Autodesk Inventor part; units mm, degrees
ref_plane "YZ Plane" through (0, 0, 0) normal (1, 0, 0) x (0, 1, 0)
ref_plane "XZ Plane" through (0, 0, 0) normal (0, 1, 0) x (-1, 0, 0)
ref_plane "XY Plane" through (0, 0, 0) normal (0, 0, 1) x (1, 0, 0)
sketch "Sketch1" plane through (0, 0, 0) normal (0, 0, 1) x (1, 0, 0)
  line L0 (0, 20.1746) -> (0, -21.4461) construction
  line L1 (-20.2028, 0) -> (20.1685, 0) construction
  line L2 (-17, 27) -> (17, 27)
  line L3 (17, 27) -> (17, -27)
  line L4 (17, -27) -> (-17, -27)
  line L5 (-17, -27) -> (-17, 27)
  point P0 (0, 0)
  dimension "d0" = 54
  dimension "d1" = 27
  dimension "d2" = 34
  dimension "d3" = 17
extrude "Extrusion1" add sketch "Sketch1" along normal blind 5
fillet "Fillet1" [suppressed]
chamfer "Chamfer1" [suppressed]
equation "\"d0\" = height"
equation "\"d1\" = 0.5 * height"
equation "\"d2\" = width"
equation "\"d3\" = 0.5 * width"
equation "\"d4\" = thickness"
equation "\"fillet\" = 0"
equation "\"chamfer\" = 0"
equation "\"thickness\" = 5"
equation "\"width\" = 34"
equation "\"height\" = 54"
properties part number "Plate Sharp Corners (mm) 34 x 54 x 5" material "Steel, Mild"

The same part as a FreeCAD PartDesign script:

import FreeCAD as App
import Part
import Sketcher
from FreeCAD import Vector
Q = App.Units.Quantity


def add_polygon(sketch, points):
    """Adds a closed chain of lines whose ends are joined by coincident constraints."""
    first, n = sketch.GeometryCount, len(points)
    for a, b in zip(points, points[1:] + points[:1]):
        sketch.addGeometry(Part.LineSegment(App.Vector(*a, 0), App.Vector(*b, 0)), False)
    for i in range(n):
        sketch.addConstraint(Sketcher.Constraint("Coincident", first + i, 2, first + (i + 1) % n, 1))

doc = App.newDocument("Part")
body = doc.addObject("PartDesign::Body", "Body")

# Sketch on XY plane
sketch1 = doc.addObject("Sketcher::SketchObject", "Sketch")
body.addObject(sketch1)
sketch1.AttachmentSupport = (doc.XY_Plane, [""])
sketch1.MapMode = "FlatFace"
add_polygon(sketch1, [(17, 27), (-17, 27), (-17, -27), (17, -27)])  # lines 0-3
sketch1.addConstraint([
    Sketcher.Constraint("Horizontal", 0),
    Sketcher.Constraint("Vertical", 1),
    Sketcher.Constraint("Horizontal", 2),
    Sketcher.Constraint("Vertical", 3),
    Sketcher.Constraint("Symmetric", 0, 2, 2, 2, -1, 1),
    Sketcher.Constraint("DistanceX", 0, 2, 0, 1, Q("34 mm")),
    Sketcher.Constraint("DistanceY", 1, 2, 1, 1, Q("54 mm")),
])
pad1 = doc.addObject("PartDesign::Pad", "Pad")
body.addObject(pad1)
pad1.Profile = sketch1
pad1.Length = 5

doc.recompute()
